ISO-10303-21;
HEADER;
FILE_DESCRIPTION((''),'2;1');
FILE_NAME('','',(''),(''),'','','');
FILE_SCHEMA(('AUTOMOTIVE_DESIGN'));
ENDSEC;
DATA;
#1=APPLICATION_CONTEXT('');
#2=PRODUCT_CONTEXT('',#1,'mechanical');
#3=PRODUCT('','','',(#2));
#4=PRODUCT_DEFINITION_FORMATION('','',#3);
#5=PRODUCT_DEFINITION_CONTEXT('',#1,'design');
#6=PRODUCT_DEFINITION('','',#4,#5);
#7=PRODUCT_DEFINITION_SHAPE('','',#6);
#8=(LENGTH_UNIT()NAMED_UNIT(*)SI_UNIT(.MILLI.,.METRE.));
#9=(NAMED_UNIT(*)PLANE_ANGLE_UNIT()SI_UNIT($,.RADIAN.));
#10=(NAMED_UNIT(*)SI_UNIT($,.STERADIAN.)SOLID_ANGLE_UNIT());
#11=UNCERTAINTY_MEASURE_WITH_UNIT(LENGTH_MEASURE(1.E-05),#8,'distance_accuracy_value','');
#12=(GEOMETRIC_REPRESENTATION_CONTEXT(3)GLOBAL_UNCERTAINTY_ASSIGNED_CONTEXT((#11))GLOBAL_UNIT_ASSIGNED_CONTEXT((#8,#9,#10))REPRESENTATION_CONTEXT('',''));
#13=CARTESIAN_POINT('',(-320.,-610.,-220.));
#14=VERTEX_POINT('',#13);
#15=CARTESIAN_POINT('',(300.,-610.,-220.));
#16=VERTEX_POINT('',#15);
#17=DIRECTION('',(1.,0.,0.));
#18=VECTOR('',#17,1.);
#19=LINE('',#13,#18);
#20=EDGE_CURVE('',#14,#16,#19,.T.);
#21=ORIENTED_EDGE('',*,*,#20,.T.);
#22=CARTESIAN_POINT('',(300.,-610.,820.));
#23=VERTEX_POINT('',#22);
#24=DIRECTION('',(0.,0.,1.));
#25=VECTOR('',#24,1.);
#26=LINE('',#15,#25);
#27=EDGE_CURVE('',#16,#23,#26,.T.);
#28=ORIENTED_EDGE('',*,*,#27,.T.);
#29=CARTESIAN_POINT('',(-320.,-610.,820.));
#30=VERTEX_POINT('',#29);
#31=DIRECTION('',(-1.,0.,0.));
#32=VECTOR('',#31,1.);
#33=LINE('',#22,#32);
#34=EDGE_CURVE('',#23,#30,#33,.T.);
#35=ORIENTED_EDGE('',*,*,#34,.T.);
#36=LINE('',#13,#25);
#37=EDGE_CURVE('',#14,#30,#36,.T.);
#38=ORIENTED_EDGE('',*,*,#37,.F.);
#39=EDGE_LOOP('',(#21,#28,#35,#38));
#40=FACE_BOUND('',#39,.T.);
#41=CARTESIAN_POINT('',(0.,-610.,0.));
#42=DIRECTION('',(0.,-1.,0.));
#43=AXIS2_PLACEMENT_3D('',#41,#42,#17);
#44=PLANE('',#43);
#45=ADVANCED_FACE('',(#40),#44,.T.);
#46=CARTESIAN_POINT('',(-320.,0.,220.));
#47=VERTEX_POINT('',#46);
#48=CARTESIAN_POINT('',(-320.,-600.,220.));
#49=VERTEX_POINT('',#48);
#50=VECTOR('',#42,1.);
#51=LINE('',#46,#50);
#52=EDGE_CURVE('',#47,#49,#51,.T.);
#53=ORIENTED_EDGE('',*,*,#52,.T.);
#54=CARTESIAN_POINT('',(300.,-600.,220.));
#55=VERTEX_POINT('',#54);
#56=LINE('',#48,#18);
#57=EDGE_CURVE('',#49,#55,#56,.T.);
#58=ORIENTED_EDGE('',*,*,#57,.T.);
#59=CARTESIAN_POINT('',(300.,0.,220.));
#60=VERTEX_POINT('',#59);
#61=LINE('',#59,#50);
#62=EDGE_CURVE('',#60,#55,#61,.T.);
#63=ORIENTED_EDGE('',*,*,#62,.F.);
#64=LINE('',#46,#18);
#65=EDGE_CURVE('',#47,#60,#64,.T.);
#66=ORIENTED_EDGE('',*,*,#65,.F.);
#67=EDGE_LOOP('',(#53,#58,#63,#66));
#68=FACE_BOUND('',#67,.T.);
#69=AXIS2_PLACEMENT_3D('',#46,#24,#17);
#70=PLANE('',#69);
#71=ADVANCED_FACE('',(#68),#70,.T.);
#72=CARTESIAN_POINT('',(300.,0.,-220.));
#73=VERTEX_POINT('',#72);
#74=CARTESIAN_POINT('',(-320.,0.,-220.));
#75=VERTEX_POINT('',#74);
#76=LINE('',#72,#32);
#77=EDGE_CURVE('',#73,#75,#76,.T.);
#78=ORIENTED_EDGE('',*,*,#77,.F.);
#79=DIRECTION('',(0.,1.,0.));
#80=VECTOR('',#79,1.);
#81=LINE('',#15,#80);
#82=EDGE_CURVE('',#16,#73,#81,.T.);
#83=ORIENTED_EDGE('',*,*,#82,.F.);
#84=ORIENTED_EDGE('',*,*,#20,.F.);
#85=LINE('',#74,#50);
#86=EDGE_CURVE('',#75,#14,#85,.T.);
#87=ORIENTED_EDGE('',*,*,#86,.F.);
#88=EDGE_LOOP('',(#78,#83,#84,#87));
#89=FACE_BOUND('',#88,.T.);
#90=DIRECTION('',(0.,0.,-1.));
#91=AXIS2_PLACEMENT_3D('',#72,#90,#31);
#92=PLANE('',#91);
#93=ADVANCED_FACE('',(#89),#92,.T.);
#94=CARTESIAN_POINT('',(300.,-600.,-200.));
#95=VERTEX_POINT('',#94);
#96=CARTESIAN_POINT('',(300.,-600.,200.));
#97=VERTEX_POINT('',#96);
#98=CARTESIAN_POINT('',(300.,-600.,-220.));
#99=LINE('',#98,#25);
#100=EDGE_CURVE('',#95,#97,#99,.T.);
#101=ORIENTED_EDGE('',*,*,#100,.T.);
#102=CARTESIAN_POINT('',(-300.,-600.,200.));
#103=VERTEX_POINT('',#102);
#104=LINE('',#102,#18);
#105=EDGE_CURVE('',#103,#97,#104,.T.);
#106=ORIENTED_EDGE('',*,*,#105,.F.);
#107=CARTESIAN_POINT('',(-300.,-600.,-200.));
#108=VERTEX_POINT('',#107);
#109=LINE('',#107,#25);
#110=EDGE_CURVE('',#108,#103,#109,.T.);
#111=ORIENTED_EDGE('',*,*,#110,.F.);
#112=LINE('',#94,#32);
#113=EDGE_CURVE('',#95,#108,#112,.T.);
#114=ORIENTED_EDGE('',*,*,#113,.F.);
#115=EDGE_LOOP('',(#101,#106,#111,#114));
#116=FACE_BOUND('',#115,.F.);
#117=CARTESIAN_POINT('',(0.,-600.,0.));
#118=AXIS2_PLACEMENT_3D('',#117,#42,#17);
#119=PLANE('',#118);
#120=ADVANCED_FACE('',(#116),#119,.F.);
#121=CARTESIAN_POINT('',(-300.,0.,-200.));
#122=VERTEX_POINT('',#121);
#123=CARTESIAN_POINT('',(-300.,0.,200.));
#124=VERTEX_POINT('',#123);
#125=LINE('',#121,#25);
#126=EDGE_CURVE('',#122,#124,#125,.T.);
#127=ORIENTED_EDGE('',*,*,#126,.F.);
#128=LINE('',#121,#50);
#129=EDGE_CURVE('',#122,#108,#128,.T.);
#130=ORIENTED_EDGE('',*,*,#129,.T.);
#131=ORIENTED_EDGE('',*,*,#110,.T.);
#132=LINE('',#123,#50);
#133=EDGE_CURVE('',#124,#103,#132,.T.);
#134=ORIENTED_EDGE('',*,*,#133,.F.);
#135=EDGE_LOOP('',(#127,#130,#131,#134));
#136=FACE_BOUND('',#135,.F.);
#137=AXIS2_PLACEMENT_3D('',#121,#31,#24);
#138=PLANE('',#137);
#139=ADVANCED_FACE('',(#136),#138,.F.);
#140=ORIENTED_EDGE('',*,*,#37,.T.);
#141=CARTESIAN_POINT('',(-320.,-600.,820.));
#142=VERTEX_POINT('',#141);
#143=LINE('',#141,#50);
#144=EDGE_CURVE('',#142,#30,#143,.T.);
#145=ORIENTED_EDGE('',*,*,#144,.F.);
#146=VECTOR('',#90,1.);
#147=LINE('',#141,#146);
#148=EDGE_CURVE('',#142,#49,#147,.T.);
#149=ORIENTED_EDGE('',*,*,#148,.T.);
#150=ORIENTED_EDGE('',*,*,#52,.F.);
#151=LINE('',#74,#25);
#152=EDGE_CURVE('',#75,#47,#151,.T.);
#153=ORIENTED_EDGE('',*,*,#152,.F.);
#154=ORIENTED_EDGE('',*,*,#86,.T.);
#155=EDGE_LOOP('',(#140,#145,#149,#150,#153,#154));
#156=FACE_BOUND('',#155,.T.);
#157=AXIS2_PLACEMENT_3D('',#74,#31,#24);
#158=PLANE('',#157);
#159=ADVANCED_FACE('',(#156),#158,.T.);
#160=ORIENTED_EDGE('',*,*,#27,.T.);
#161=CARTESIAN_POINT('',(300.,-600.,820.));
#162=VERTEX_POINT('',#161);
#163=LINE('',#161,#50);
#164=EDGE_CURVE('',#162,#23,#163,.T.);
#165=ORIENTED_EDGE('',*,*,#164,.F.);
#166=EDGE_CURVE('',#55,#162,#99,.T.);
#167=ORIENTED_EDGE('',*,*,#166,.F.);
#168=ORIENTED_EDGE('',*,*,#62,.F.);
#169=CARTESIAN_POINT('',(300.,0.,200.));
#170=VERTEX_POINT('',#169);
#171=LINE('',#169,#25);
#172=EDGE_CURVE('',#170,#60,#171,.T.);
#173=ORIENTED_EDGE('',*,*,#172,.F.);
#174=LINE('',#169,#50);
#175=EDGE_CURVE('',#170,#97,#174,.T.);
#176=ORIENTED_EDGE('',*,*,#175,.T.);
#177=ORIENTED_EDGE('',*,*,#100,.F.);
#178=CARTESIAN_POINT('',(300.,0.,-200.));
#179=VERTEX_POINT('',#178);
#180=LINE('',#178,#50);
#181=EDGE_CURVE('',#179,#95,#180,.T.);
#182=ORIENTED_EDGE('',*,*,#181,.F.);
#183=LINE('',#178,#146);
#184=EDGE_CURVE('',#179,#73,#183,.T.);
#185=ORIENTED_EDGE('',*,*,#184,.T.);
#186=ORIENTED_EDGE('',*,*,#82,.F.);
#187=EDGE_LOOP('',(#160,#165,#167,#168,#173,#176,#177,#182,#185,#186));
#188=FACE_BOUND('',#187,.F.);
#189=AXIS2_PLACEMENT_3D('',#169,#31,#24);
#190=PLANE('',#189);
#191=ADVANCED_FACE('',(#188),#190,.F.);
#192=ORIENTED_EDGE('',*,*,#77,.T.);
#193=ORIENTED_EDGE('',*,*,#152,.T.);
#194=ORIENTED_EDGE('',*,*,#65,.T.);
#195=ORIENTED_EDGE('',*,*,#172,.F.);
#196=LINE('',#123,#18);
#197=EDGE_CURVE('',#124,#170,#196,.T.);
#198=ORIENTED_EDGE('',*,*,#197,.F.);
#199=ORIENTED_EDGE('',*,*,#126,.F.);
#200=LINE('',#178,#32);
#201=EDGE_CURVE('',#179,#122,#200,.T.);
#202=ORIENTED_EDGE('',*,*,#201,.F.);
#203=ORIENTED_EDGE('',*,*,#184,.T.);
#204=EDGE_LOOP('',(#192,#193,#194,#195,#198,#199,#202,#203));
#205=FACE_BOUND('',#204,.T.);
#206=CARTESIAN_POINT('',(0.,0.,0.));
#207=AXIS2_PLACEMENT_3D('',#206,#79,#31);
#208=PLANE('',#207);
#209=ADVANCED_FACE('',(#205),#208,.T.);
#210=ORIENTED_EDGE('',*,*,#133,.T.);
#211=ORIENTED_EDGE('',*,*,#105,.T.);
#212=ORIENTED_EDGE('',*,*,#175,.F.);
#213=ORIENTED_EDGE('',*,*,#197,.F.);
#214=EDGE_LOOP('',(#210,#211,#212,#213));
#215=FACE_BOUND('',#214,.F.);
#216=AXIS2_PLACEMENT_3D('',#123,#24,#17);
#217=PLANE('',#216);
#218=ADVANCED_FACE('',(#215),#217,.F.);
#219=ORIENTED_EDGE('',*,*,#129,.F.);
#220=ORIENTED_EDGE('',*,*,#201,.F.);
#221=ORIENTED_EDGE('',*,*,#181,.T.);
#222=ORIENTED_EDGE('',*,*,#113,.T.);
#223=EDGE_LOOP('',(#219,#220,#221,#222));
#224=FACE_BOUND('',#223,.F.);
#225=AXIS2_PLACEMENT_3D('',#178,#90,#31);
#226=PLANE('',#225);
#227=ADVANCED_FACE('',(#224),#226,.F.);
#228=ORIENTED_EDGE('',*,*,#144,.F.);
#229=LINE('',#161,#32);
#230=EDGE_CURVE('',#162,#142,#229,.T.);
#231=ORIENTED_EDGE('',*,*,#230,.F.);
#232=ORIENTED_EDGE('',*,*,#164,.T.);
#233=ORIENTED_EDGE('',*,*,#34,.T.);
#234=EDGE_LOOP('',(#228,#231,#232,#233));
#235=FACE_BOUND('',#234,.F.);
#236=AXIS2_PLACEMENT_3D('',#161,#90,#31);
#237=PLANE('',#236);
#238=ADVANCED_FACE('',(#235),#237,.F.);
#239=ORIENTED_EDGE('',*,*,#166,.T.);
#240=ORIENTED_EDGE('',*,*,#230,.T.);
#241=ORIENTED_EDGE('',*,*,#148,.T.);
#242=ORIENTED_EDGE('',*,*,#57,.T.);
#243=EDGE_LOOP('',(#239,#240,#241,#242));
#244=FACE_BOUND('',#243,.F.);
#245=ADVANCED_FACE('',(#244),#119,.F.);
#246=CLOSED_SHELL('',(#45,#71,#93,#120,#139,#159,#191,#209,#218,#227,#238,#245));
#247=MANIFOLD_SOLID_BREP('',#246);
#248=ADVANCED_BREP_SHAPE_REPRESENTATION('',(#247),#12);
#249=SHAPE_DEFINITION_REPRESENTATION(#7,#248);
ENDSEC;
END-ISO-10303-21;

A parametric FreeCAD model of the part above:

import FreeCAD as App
import Part
import Sketcher
Q = App.Units.Quantity


def add_polygon(sketch, points):
    """Adds a closed chain of lines whose ends are joined by coincident constraints."""
    first, n = sketch.GeometryCount, len(points)
    for a, b in zip(points, points[1:] + points[:1]):
        sketch.addGeometry(Part.LineSegment(App.Vector(*a, 0), App.Vector(*b, 0)), False)
    for i in range(n):
        sketch.addConstraint(Sketcher.Constraint("Coincident", first + i, 2, first + (i + 1) % n, 1))

doc = App.newDocument("Part")
params = doc.addObject("Spreadsheet::Sheet", "Params")
for row, (alias, value) in enumerate([
    ("sketch1_width", "600 mm"),
    ("sketch1_height", "400 mm"),
    ("sketch1_height2", "440 mm"),
    ("sketch1_width2", "620 mm"),
    ("pad1_length", "600 mm"),
    ("sketch2_width", "620 mm"),
    ("sketch2_height", "1040 mm"),
    ("pad2_length", "10 mm"),
], start=1):
    params.set(f"A{row}", alias)
    params.set(f"B{row}", "=" + value)
    params.setAlias(f"B{row}", alias)

body = doc.addObject("PartDesign::Body", "Body")

sketch1 = doc.addObject("Sketcher::SketchObject", "Sketch")
body.addObject(sketch1)
sketch1.AttachmentSupport = (doc.XZ_Plane, [""])
sketch1.MapMode = "FlatFace"
add_polygon(sketch1, [(300, 200), (-300, 200), (-300, -200), (300, -200), (300, -220), (-320, -220), (-320, 220), (300, 220)])
sketch1.addConstraint([
    Sketcher.Constraint("Horizontal", 0),
    Sketcher.Constraint("Vertical", 1),
    Sketcher.Constraint("Horizontal", 2),
    Sketcher.Constraint("Vertical", 3),
    Sketcher.Constraint("Horizontal", 4),
    Sketcher.Constraint("Vertical", 5),
    Sketcher.Constraint("Horizontal", 6),
    Sketcher.Constraint("Vertical", 7),
    Sketcher.Constraint("Symmetric", 0, 2, 2, 2, -1, 1),
    Sketcher.Constraint("Symmetric", 3, 2, 6, 2, -1),
    Sketcher.Constraint("DistanceX", 0, 2, 0, 1, Q("600 mm")),
    Sketcher.Constraint("DistanceY", 1, 2, 1, 1, Q("400 mm")),
    Sketcher.Constraint("DistanceY", 5, 1, 5, 2, Q("440 mm")),
    Sketcher.Constraint("DistanceX", 4, 2, 4, 1, Q("620 mm")),
])
sketch1.setExpression("Constraints[18]", "Params.sketch1_width")
sketch1.setExpression("Constraints[19]", "Params.sketch1_height")
sketch1.setExpression("Constraints[20]", "Params.sketch1_height2")
sketch1.setExpression("Constraints[21]", "Params.sketch1_width2")
pad1 = doc.addObject("PartDesign::Pad", "Pad")
body.addObject(pad1)
pad1.Profile = sketch1
pad1.setExpression("Length", "Params.pad1_length")

sketch2 = doc.addObject("Sketcher::SketchObject", "Sketch001")
body.addObject(sketch2)
sketch2.AttachmentSupport = (doc.XZ_Plane, [""])
sketch2.MapMode = "FlatFace"
sketch2.AttachmentOffset = App.Placement(App.Vector(0, 0, 600), App.Rotation())
add_polygon(sketch2, [(-320, 820), (-320, -220), (300, -220), (300, 820)])
sketch2.addConstraint([
    Sketcher.Constraint("Vertical", 0),
    Sketcher.Constraint("Horizontal", 1),
    Sketcher.Constraint("Vertical", 2),
    Sketcher.Constraint("Horizontal", 3),
    Sketcher.Constraint("DistanceX", 1, 1, 1, 2, Q("620 mm")),
    Sketcher.Constraint("DistanceY", 0, 2, 0, 1, Q("1040 mm")),
    Sketcher.Constraint("DistanceX", 0, 2, -1, 1, Q("320 mm")),
    Sketcher.Constraint("DistanceY", 0, 2, -1, 1, Q("220 mm")),
])
sketch2.setExpression("Constraints[8]", "Params.sketch2_width")
sketch2.setExpression("Constraints[9]", "Params.sketch2_height")
pad2 = doc.addObject("PartDesign::Pad", "Pad001")
body.addObject(pad2)
pad2.Profile = sketch2
pad2.setExpression("Length", "Params.pad2_length")

doc.recompute()
